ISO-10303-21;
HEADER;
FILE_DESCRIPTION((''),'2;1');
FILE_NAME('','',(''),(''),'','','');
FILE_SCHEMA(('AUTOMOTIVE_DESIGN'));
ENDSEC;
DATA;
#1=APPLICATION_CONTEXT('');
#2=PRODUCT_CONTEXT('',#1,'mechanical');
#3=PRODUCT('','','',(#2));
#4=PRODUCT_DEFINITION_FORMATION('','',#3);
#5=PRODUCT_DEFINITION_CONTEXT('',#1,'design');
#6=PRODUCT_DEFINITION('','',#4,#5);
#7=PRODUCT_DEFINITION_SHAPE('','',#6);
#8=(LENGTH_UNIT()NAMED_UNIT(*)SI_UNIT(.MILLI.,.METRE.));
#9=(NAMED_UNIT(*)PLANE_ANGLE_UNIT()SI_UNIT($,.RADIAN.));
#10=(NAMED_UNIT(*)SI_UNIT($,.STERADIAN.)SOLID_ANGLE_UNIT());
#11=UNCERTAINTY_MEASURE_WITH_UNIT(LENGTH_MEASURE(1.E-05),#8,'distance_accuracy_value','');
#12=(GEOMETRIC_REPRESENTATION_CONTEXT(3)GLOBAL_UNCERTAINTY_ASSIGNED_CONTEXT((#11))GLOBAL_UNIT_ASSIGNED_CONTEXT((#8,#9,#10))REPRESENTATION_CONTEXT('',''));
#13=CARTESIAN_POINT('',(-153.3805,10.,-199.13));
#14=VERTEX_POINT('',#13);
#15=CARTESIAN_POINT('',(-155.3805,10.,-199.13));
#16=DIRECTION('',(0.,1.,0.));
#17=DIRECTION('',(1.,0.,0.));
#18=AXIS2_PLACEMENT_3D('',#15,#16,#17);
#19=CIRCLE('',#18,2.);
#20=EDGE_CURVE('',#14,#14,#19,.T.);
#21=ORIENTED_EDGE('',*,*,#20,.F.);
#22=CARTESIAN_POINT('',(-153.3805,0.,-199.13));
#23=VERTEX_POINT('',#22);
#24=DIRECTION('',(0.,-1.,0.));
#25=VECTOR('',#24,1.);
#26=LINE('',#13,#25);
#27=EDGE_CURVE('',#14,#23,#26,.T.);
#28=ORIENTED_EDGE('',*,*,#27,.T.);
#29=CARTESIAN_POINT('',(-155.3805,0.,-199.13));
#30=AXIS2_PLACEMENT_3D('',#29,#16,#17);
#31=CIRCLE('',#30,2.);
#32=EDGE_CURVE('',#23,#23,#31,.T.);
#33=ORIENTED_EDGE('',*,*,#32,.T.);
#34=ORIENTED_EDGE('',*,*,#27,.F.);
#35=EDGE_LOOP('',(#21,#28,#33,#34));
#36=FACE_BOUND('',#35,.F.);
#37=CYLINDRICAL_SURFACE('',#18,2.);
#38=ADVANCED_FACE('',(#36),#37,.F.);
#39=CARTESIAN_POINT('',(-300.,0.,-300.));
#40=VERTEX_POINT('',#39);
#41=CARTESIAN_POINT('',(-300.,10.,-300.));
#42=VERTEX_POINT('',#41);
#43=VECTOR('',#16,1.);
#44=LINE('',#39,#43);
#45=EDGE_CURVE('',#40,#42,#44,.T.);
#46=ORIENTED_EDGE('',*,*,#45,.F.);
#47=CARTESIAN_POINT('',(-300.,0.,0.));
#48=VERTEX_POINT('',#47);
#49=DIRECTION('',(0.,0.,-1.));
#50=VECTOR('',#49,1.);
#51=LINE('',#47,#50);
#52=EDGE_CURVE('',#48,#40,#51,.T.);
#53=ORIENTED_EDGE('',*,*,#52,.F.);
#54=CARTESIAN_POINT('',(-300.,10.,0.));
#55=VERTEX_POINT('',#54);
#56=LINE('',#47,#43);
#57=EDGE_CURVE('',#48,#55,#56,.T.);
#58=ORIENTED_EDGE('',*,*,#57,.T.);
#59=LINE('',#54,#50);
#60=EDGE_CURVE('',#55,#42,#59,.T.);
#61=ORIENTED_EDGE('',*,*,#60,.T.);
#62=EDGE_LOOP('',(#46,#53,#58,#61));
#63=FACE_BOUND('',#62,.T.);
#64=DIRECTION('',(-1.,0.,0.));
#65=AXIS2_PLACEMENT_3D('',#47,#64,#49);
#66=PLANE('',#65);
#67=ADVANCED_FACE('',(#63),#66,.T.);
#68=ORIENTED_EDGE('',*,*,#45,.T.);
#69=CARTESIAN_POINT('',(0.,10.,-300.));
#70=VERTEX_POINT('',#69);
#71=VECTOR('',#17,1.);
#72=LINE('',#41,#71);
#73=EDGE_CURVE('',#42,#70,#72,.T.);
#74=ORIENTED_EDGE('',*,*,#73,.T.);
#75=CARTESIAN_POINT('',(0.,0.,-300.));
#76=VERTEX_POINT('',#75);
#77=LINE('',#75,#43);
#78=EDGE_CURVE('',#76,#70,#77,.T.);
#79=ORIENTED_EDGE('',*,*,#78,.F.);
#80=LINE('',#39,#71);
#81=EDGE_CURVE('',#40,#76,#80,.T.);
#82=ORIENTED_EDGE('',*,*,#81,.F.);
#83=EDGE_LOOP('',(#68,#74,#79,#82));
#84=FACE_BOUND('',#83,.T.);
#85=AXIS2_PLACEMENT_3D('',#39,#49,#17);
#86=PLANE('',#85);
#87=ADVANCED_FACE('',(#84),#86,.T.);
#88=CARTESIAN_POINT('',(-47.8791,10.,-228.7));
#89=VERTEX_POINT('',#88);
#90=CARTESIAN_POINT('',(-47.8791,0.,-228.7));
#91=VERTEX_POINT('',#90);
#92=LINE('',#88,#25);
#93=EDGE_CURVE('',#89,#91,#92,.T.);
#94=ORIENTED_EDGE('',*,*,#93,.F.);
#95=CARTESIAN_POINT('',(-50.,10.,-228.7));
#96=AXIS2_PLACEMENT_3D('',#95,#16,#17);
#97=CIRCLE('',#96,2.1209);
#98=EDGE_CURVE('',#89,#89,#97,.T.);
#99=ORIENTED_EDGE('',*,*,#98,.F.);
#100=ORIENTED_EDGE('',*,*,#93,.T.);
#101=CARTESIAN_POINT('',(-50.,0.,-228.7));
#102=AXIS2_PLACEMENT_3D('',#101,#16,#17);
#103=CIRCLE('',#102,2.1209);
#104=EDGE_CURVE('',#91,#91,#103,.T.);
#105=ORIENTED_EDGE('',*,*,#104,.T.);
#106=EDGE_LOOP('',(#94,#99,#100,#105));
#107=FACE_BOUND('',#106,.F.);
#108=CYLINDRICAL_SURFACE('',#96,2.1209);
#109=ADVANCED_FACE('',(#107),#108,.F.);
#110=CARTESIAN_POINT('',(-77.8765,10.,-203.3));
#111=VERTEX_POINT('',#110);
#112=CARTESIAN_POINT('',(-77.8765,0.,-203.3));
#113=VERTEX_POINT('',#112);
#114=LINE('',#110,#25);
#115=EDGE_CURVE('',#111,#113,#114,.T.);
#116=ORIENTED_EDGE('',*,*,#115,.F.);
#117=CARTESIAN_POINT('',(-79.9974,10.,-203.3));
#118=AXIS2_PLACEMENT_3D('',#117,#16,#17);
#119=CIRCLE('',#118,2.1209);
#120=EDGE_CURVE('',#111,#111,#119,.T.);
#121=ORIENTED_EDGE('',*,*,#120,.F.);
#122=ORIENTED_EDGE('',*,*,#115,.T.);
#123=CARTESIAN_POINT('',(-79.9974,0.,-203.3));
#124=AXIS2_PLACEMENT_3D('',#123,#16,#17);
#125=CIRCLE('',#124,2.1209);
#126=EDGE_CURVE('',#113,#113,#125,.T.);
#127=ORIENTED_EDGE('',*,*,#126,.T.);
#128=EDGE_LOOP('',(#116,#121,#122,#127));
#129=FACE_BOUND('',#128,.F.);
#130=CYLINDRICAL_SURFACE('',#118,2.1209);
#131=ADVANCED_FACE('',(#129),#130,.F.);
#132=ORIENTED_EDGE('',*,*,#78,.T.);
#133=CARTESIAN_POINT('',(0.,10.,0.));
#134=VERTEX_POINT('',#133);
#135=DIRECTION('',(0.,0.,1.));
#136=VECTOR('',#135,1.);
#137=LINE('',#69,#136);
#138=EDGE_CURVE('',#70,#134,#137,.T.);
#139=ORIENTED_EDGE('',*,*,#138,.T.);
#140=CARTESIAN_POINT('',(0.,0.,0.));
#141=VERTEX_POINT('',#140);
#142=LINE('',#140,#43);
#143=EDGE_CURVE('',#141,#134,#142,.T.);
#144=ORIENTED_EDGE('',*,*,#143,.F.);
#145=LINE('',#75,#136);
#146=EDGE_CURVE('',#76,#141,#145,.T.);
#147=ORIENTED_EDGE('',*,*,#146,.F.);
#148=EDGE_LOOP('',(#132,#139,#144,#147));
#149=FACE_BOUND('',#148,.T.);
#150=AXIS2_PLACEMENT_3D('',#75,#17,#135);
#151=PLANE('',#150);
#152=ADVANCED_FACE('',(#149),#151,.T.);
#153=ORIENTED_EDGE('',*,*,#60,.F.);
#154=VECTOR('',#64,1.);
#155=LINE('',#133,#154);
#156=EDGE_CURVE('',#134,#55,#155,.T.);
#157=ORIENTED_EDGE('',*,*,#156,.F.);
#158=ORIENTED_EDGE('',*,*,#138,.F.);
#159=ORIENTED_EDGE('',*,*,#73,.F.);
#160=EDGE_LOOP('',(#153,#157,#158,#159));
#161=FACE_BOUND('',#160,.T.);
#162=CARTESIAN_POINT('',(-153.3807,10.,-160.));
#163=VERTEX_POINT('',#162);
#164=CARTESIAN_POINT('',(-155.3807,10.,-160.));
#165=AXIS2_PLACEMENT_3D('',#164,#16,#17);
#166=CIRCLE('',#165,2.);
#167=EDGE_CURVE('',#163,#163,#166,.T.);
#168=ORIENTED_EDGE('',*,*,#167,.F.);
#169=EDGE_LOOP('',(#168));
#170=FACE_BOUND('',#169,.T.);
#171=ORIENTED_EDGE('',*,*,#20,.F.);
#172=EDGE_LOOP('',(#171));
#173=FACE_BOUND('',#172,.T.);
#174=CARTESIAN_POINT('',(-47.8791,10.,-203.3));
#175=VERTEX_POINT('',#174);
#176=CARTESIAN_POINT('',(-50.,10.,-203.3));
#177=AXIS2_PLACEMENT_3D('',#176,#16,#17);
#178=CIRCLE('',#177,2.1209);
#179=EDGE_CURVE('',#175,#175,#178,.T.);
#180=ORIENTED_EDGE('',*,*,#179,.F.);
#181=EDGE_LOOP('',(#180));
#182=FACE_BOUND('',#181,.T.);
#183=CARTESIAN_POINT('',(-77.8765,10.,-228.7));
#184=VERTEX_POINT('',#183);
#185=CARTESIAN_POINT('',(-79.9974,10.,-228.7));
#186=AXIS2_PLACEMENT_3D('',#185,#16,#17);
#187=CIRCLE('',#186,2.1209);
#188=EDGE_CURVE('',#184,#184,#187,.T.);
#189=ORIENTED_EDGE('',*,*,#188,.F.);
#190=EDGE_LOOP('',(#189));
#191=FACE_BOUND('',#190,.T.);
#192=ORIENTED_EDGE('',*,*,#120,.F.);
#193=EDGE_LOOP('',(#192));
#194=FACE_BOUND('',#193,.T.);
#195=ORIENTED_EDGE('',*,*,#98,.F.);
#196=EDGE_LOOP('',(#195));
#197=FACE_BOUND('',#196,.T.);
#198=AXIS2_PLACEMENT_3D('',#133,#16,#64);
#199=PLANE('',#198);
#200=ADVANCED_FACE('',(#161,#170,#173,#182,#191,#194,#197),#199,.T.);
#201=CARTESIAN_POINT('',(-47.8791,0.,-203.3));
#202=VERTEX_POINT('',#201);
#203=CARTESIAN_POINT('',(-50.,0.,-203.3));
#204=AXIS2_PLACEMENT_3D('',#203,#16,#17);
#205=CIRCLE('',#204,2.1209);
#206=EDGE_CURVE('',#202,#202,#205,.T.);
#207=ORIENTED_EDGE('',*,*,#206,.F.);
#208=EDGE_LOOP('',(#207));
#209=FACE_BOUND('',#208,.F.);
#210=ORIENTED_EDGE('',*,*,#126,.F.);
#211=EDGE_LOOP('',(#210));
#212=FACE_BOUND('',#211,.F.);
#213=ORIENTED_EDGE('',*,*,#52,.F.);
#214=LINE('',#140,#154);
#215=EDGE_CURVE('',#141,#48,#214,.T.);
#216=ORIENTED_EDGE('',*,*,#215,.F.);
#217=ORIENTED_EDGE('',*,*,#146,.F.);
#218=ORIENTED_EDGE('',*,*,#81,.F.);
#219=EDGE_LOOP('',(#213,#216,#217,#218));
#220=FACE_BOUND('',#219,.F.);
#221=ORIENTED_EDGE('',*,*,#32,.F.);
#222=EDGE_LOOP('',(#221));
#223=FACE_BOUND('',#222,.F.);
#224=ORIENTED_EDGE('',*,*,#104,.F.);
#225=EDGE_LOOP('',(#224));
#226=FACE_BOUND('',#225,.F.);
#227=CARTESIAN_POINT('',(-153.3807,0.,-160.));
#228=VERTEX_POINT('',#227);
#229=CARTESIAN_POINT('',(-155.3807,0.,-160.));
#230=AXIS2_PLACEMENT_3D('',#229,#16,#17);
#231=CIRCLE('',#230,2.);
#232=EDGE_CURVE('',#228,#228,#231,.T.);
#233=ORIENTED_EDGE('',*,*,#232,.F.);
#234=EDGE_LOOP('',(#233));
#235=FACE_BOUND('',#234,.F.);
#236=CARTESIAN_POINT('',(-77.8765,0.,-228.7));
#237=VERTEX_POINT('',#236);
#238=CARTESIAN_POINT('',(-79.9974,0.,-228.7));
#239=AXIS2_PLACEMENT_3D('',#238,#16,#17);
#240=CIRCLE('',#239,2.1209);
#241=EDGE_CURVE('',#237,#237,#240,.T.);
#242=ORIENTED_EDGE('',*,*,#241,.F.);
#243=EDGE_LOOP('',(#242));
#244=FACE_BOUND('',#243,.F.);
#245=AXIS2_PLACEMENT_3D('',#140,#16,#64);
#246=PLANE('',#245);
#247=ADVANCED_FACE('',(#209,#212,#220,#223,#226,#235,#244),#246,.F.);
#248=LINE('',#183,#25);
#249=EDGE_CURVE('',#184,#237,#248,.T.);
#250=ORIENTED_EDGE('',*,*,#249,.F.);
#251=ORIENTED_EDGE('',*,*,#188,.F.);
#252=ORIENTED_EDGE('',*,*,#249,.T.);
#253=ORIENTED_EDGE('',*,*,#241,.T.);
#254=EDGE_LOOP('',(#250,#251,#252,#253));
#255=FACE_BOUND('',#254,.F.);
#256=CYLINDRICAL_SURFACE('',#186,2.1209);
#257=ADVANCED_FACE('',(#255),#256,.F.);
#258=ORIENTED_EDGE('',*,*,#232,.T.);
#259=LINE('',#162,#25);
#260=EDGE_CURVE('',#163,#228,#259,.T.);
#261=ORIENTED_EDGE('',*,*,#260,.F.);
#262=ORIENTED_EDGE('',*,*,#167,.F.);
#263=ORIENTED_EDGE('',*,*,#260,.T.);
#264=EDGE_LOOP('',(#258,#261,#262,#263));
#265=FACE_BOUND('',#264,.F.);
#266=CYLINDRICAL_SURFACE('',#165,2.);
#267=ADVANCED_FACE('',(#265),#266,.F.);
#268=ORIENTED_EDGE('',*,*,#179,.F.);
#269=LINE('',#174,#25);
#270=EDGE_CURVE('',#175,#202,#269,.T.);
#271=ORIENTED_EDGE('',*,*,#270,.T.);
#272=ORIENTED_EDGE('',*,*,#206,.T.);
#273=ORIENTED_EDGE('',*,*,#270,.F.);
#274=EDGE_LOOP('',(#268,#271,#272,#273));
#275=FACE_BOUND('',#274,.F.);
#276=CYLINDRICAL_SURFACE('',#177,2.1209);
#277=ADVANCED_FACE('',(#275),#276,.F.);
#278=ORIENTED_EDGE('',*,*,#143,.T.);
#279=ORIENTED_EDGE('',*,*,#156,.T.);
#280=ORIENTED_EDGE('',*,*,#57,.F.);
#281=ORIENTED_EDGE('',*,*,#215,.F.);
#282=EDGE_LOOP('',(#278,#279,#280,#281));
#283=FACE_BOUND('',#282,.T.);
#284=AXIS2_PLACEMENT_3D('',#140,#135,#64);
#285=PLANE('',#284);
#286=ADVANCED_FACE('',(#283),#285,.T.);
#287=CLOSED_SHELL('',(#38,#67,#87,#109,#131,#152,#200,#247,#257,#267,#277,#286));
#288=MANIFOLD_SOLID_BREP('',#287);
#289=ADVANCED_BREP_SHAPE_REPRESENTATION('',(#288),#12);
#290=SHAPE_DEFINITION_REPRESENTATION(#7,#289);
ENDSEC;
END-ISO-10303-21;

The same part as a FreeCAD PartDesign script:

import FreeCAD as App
import Part
import Sketcher
from FreeCAD import Vector


def add_polygon(sketch, points):
    """Adds a closed chain of lines whose ends are joined by coincident constraints."""
    first, n = sketch.GeometryCount, len(points)
    for a, b in zip(points, points[1:] + points[:1]):
        sketch.addGeometry(Part.LineSegment(App.Vector(*a, 0), App.Vector(*b, 0)), False)
    for i in range(n):
        sketch.addConstraint(Sketcher.Constraint("Coincident", first + i, 2, first + (i + 1) % n, 1))

doc = App.newDocument("Part")
params = doc.addObject("Spreadsheet::Sheet", "Params")
for row, (alias, value) in enumerate([
    ("sketch1_width", "300 mm"),
    ("pad1_length", "10 mm"),
    ("sketch3_diameter", "4 mm"),
], start=1):
    params.set(f"A{row}", alias)
    params.set(f"B{row}", "=" + value)
    params.setAlias(f"B{row}", alias)

body = doc.addObject("PartDesign::Body", "Body")

# Sketch on XZ plane
sketch1 = body.newObject("Sketcher::SketchObject", "Sketch")
sketch1.AttachmentSupport = (doc.getObject("XZ_Plane"), [""])
sketch1.MapMode = "FlatFace"
add_polygon(sketch1, [(-300, 0), (0, 0), (0, -300), (-300, -300)])  # lines 0-3
sketch1.addConstraint(Sketcher.Constraint("Horizontal", 0))
sketch1.addConstraint(Sketcher.Constraint("Vertical", 1))
sketch1.addConstraint(Sketcher.Constraint("Horizontal", 2))
sketch1.addConstraint(Sketcher.Constraint("Vertical", 3))
sketch1.addConstraint(Sketcher.Constraint("Coincident", 0, 2, -1, 1))
sketch1.addConstraint(Sketcher.Constraint("Equal", 2, 1))
sketch1.addConstraint(Sketcher.Constraint("DistanceX", 0, 1, 0, 2, 300.0))
sketch1.setExpression("Constraints[10]", "Params.sketch1_width")
pad1 = body.newObject("PartDesign::Pad", "Pad")
pad1.Profile = sketch1
pad1.setExpression("Length", "Params.pad1_length")
pad1.Reversed = True

# Sketch on XZ plane
sketch2 = body.newObject("Sketcher::SketchObject", "Sketch001")
sketch2.AttachmentSupport = (doc.getObject("XZ_Plane"), [""])
sketch2.MapMode = "FlatFace"
sketch2.AttachmentOffset = App.Placement(Vector(0, 0, -10), App.Rotation())
sketch2.addGeometry(Part.Circle(Vector(-50, -203.3, 0), Vector(0, 0, 1), 2.1), False)
sketch2.addGeometry(Part.Circle(Vector(-50, -228.7, 0), Vector(0, 0, 1), 2.1), False)
sketch2.addGeometry(Part.Circle(Vector(-80, -203.3, 0), Vector(0, 0, 1), 2.1), False)
sketch2.addGeometry(Part.Circle(Vector(-80, -228.7, 0), Vector(0, 0, 1), 2.1), False)
sketch2.addConstraint(Sketcher.Constraint("Equal", 0, 1))
sketch2.addConstraint(Sketcher.Constraint("Equal", 1, 2))
sketch2.addConstraint(Sketcher.Constraint("Equal", 2, 3))
sketch2.addConstraint(Sketcher.Constraint("Horizontal", 0, 3, 2, 3))
sketch2.addConstraint(Sketcher.Constraint("Horizontal", 1, 3, 3, 3))
sketch2.addConstraint(Sketcher.Constraint("Vertical", 0, 3, 1, 3))
sketch2.addConstraint(Sketcher.Constraint("Vertical", 2, 3, 3, 3))
sketch2.addConstraint(Sketcher.Constraint("DistanceX", 0, 3, -1, 1, 50.0))
sketch2.addConstraint(Sketcher.Constraint("Diameter", 0, 4.2418))
sketch2.addConstraint(Sketcher.Constraint("DistanceY", 0, 3, -1, 1, 203.3))
sketch2.addConstraint(Sketcher.Constraint("DistanceY", 1, 3, -1, 1, 228.7))
sketch2.addConstraint(Sketcher.Constraint("DistanceX", 2, 3, -1, 1, 79.9974))
pocket1 = body.newObject("PartDesign::Pocket", "Pocket")
pocket1.Profile = sketch2
pocket1.Type = "ThroughAll"
pocket1.Reversed = True

# Sketch on XZ plane
sketch3 = body.newObject("Sketcher::SketchObject", "Sketch002")
sketch3.AttachmentSupport = (doc.getObject("XZ_Plane"), [""])
sketch3.MapMode = "FlatFace"
sketch3.AttachmentOffset = App.Placement(Vector(0, 0, -10), App.Rotation())
sketch3.addGeometry(Part.Circle(Vector(-155.4, -160, 0), Vector(0, 0, 1), 2), False)
sketch3.addGeometry(Part.Circle(Vector(-155.4, -199.1, 0), Vector(0, 0, 1), 2), False)
sketch3.addConstraint(Sketcher.Constraint("Equal", 0, 1))
sketch3.addConstraint(Sketcher.Constraint("Vertical", 0, 3, 1, 3))
sketch3.addConstraint(Sketcher.Constraint("Diameter", 0, 4.0))
sketch3.addConstraint(Sketcher.Constraint("DistanceY", 0, 3, -1, 1, 160.0))
sketch3.addConstraint(Sketcher.Constraint("DistanceY", 1, 3, -1, 1, 199.13))
sketch3.addConstraint(Sketcher.Constraint("DistanceX", 0, 3, -1, 1, 155.3807))
sketch3.setExpression("Constraints[2]", "Params.sketch3_diameter")
pocket2 = body.newObject("PartDesign::Pocket", "Pocket001")
pocket2.Profile = sketch3
pocket2.Type = "ThroughAll"
pocket2.Reversed = True

doc.recompute()
